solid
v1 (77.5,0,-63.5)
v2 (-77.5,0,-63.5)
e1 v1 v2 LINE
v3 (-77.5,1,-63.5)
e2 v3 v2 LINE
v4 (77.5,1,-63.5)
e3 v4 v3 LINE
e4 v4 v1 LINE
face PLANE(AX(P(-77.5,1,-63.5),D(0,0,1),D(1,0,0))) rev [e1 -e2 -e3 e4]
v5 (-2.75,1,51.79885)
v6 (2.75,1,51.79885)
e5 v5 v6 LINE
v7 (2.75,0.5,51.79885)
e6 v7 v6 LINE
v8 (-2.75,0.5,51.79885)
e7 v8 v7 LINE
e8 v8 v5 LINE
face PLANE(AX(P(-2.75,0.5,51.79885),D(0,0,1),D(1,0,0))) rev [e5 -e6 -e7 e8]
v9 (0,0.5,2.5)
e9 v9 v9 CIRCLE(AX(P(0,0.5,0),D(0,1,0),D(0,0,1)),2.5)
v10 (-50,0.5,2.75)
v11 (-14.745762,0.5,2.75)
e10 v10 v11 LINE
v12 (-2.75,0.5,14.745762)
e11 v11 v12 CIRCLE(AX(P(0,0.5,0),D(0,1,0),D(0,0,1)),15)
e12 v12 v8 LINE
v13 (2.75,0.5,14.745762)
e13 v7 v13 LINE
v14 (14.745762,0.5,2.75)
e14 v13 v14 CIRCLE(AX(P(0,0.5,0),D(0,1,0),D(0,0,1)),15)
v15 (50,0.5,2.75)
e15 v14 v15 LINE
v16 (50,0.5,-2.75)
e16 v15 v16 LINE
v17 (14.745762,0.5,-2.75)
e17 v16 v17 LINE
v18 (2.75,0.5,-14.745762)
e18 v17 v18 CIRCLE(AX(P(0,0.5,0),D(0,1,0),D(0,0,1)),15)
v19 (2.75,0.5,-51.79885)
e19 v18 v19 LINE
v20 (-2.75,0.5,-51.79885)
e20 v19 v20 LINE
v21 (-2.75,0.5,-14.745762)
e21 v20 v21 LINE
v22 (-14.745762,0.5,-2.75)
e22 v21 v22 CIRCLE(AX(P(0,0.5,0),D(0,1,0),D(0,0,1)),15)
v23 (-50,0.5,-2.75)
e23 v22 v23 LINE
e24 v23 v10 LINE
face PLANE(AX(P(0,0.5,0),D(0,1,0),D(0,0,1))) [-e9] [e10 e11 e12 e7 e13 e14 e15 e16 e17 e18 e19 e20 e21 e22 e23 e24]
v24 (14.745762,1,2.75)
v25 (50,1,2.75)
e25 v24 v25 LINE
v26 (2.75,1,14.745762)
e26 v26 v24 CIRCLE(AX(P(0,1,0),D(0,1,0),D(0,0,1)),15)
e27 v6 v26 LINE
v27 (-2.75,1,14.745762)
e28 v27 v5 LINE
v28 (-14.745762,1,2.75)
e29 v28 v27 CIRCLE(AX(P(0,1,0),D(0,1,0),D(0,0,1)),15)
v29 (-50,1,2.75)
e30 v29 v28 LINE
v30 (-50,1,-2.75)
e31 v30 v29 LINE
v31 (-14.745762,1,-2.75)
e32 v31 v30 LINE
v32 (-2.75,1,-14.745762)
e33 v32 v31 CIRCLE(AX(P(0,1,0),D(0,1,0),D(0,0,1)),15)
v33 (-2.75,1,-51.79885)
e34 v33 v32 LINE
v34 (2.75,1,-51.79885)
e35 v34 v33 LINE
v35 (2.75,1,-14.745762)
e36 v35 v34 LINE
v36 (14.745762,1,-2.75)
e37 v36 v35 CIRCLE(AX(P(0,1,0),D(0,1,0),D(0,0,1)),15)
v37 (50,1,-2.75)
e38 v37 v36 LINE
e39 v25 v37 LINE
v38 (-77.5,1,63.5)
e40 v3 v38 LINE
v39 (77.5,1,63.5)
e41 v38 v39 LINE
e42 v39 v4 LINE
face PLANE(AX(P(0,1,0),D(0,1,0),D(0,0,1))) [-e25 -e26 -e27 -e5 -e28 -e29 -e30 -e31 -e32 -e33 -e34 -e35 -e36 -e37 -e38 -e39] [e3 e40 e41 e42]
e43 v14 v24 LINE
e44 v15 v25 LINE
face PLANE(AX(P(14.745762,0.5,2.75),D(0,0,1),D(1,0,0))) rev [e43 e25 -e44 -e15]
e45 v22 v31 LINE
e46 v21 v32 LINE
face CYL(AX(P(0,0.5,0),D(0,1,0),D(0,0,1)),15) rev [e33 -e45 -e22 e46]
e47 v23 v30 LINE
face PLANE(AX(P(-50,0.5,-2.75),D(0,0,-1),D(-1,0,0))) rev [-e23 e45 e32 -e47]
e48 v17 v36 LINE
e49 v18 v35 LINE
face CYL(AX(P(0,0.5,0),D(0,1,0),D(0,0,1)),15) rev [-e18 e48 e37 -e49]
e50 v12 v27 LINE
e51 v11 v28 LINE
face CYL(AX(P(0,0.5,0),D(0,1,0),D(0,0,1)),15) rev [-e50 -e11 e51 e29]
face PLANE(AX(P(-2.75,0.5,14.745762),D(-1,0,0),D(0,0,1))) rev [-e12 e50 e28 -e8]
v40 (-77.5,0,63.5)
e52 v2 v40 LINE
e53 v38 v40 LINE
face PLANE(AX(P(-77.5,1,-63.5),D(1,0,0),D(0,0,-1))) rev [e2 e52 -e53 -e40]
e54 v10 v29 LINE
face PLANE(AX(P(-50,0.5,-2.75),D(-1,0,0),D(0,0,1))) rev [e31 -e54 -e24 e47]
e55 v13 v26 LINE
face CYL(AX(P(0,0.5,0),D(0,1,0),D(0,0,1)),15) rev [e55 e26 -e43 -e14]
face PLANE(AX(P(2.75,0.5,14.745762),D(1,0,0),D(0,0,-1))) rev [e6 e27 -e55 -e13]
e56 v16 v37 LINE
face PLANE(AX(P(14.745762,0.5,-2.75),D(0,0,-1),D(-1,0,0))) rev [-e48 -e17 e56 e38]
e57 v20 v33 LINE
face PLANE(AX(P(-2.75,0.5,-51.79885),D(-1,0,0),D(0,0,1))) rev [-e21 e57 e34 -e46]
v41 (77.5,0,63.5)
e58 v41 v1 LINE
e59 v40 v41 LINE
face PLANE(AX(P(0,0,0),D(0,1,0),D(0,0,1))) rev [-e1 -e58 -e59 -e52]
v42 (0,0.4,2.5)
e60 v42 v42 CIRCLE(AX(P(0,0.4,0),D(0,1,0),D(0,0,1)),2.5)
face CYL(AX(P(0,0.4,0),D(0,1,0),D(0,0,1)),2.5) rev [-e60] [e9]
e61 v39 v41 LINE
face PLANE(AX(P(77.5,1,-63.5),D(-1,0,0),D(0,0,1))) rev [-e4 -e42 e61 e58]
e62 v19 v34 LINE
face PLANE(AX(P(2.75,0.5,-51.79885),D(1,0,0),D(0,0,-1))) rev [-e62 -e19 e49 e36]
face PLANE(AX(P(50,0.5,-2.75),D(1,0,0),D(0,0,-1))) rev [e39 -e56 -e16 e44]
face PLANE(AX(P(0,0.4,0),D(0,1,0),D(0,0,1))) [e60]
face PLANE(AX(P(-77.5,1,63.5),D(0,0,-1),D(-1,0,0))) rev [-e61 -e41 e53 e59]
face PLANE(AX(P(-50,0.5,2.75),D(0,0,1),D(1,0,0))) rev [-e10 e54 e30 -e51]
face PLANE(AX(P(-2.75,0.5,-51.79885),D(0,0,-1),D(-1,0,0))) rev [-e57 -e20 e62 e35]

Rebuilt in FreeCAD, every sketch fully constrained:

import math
import FreeCAD as App
import Part
import Sketcher
from FreeCAD import Vector
Q = App.Units.Quantity


def add_polygon(sketch, points):
    """Adds a closed chain of lines whose ends are joined by coincident constraints."""
    first, n = sketch.GeometryCount, len(points)
    for a, b in zip(points, points[1:] + points[:1]):
        sketch.addGeometry(Part.LineSegment(App.Vector(*a, 0), App.Vector(*b, 0)), False)
    for i in range(n):
        sketch.addConstraint(Sketcher.Constraint("Coincident", first + i, 2, first + (i + 1) % n, 1))

doc = App.newDocument("Part")
body = doc.addObject("PartDesign::Body", "Body")

# Sketch on XZ plane
sketch1 = doc.addObject("Sketcher::SketchObject", "Sketch")
body.addObject(sketch1)
sketch1.AttachmentSupport = (doc.XZ_Plane, [""])
sketch1.MapMode = "FlatFace"
add_polygon(sketch1, [(-77.5, -63.5), (-77.5, 63.5), (77.5, 63.5), (77.5, -63.5)])  # lines 0-3
sketch1.addConstraint(Sketcher.Constraint("Vertical", 0))
sketch1.addConstraint(Sketcher.Constraint("Horizontal", 1))
sketch1.addConstraint(Sketcher.Constraint("Vertical", 2))
sketch1.addConstraint(Sketcher.Constraint("Horizontal", 3))
sketch1.addConstraint(Sketcher.Constraint("Symmetric", 0, 2, 2, 2, -1, 1))
sketch1.addConstraint(Sketcher.Constraint("DistanceX", 1, 1, 1, 2, Q("155 mm")))
sketch1.addConstraint(Sketcher.Constraint("DistanceY", 0, 1, 0, 2, Q("127 mm")))
pad1 = doc.addObject("PartDesign::Pad", "Pad")
body.addObject(pad1)
pad1.Profile = sketch1
pad1.Length = 1
pad1.Reversed = True

# Sketch on XZ plane
sketch2 = doc.addObject("Sketcher::SketchObject", "Sketch001")
body.addObject(sketch2)
sketch2.AttachmentSupport = (doc.XZ_Plane, [""])
sketch2.MapMode = "FlatFace"
sketch2.AttachmentOffset = App.Placement(Vector(0, 0, -1), App.Rotation())
sketch2.addGeometry(Part.LineSegment(Vector(2.75, 51.79885, 0), Vector(2.75, 14.745762, 0)), False)
sketch2.addGeometry(Part.ArcOfCircle(Part.Circle(Vector(0, 0, 0), Vector(0, 0, 1), 15), math.radians(10.563978), math.radians(79.436022)), False)
sketch2.addGeometry(Part.LineSegment(Vector(14.745762, 2.75, 0), Vector(50, 2.75, 0)), False)
sketch2.addGeometry(Part.LineSegment(Vector(50, 2.75, 0), Vector(50, -2.75, 0)), False)
sketch2.addGeometry(Part.LineSegment(Vector(50, -2.75, 0), Vector(14.745762, -2.75, 0)), False)
sketch2.addGeometry(Part.ArcOfCircle(Part.Circle(Vector(0, 0, 0), Vector(0, 0, 1), 15), math.radians(-79.436022), math.radians(-10.563978)), False)
sketch2.addGeometry(Part.LineSegment(Vector(2.75, -14.745762, 0), Vector(2.75, -51.79885, 0)), False)
sketch2.addGeometry(Part.LineSegment(Vector(2.75, -51.79885, 0), Vector(-2.75, -51.79885, 0)), False)
sketch2.addGeometry(Part.LineSegment(Vector(-2.75, -51.79885, 0), Vector(-2.75, -14.745762, 0)), False)
sketch2.addGeometry(Part.ArcOfCircle(Part.Circle(Vector(0, 0, 0), Vector(0, 0, 1), 15), math.radians(-169.436022), math.radians(-100.563978)), False)
sketch2.addGeometry(Part.LineSegment(Vector(-14.745762, -2.75, 0), Vector(-50, -2.75, 0)), False)
sketch2.addGeometry(Part.LineSegment(Vector(-50, -2.75, 0), Vector(-50, 2.75, 0)), False)
sketch2.addGeometry(Part.LineSegment(Vector(-50, 2.75, 0), Vector(-14.745762, 2.75, 0)), False)
sketch2.addGeometry(Part.ArcOfCircle(Part.Circle(Vector(0, 0, 0), Vector(0, 0, 1), 15), math.radians(100.563978), math.radians(169.436022)), False)
sketch2.addGeometry(Part.LineSegment(Vector(-2.75, 14.745762, 0), Vector(-2.75, 51.79885, 0)), False)
sketch2.addGeometry(Part.LineSegment(Vector(-2.75, 51.79885, 0), Vector(2.75, 51.79885, 0)), False)
sketch2.addConstraint(Sketcher.Constraint("Coincident", 0, 2, 1, 2))
sketch2.addConstraint(Sketcher.Constraint("Coincident", 1, 1, 2, 1))
sketch2.addConstraint(Sketcher.Constraint("Coincident", 2, 2, 3, 1))
sketch2.addConstraint(Sketcher.Constraint("Coincident", 3, 2, 4, 1))
sketch2.addConstraint(Sketcher.Constraint("Coincident", 4, 2, 5, 2))
sketch2.addConstraint(Sketcher.Constraint("Coincident", 5, 1, 6, 1))
sketch2.addConstraint(Sketcher.Constraint("Coincident", 6, 2, 7, 1))
sketch2.addConstraint(Sketcher.Constraint("Coincident", 7, 2, 8, 1))
sketch2.addConstraint(Sketcher.Constraint("Coincident", 8, 2, 9, 2))
sketch2.addConstraint(Sketcher.Constraint("Coincident", 9, 1, 10, 1))
sketch2.addConstraint(Sketcher.Constraint("Coincident", 10, 2, 11, 1))
sketch2.addConstraint(Sketcher.Constraint("Coincident", 11, 2, 12, 1))
sketch2.addConstraint(Sketcher.Constraint("Coincident", 12, 2, 13, 2))
sketch2.addConstraint(Sketcher.Constraint("Coincident", 13, 1, 14, 1))
sketch2.addConstraint(Sketcher.Constraint("Coincident", 14, 2, 15, 1))
sketch2.addConstraint(Sketcher.Constraint("Coincident", 15, 2, 0, 1))
sketch2.addConstraint(Sketcher.Constraint("Vertical", 0))
sketch2.addConstraint(Sketcher.Constraint("Horizontal", 2))
sketch2.addConstraint(Sketcher.Constraint("Vertical", 3))
sketch2.addConstraint(Sketcher.Constraint("Horizontal", 4))
sketch2.addConstraint(Sketcher.Constraint("Vertical", 6))
sketch2.addConstraint(Sketcher.Constraint("Horizontal", 7))
sketch2.addConstraint(Sketcher.Constraint("Vertical", 8))
sketch2.addConstraint(Sketcher.Constraint("Horizontal", 10))
sketch2.addConstraint(Sketcher.Constraint("Vertical", 11))
sketch2.addConstraint(Sketcher.Constraint("Horizontal", 12))
sketch2.addConstraint(Sketcher.Constraint("Vertical", 14))
sketch2.addConstraint(Sketcher.Constraint("Horizontal", 15))
sketch2.addConstraint(Sketcher.Constraint("Coincident", 1, 3, -1, 1))
sketch2.addConstraint(Sketcher.Constraint("Coincident", 5, 3, -1, 1))
sketch2.addConstraint(Sketcher.Constraint("Coincident", 9, 3, -1, 1))
sketch2.addConstraint(Sketcher.Constraint("Coincident", 13, 3, -1, 1))
sketch2.addConstraint(Sketcher.Constraint("Equal", 1, 5))
sketch2.addConstraint(Sketcher.Constraint("Equal", 5, 9))
sketch2.addConstraint(Sketcher.Constraint("Equal", 9, 13))
sketch2.addConstraint(Sketcher.Constraint("Symmetric", 2, 2, 10, 2, -1, 1))
sketch2.addConstraint(Sketcher.Constraint("Symmetric", 6, 2, 14, 2, -1, 1))
sketch2.addConstraint(Sketcher.Constraint("Horizontal", 5, 1, 8, 2))
sketch2.addConstraint(Sketcher.Constraint("Horizontal", 4, 2, 9, 1))
sketch2.addConstraint(Sketcher.Constraint("Horizontal", 2, 2, 11, 2))
sketch2.addConstraint(Sketcher.Constraint("Horizontal", 0, 2, 13, 1))
sketch2.addConstraint(Sketcher.Constraint("Equal", 15, 3))
sketch2.addConstraint(Sketcher.Constraint("Radius", 1, Q("15 mm")))
sketch2.addConstraint(Sketcher.Constraint("DistanceX", 7, 2, 7, 1, Q("5.5 mm")))
sketch2.addConstraint(Sketcher.Constraint("DistanceX", -1, 1, 2, 2, Q("50 mm")))
sketch2.addConstraint(Sketcher.Constraint("DistanceY", 0, 2, 0, 1, Q("37.053088 mm")))
pocket1 = doc.addObject("PartDesign::Pocket", "Pocket")
body.addObject(pocket1)
pocket1.Profile = sketch2
pocket1.Length = 0.5
pocket1.Reversed = True

# Sketch on XZ plane
sketch3 = doc.addObject("Sketcher::SketchObject", "Sketch002")
body.addObject(sketch3)
sketch3.AttachmentSupport = (doc.XZ_Plane, [""])
sketch3.MapMode = "FlatFace"
sketch3.AttachmentOffset = App.Placement(Vector(0, 0, -0.5), App.Rotation())
sketch3.addGeometry(Part.Circle(Vector(0, 0, 0), Vector(0, 0, 1), 2.5), False)
sketch3.addConstraint(Sketcher.Constraint("Coincident", 0, 3, -1, 1))
sketch3.addConstraint(Sketcher.Constraint("Diameter", 0, Q("5 mm")))
pocket2 = doc.addObject("PartDesign::Pocket", "Pocket001")
body.addObject(pocket2)
pocket2.Profile = sketch3
pocket2.Length = 0.1
pocket2.Reversed = True

doc.recompute()
